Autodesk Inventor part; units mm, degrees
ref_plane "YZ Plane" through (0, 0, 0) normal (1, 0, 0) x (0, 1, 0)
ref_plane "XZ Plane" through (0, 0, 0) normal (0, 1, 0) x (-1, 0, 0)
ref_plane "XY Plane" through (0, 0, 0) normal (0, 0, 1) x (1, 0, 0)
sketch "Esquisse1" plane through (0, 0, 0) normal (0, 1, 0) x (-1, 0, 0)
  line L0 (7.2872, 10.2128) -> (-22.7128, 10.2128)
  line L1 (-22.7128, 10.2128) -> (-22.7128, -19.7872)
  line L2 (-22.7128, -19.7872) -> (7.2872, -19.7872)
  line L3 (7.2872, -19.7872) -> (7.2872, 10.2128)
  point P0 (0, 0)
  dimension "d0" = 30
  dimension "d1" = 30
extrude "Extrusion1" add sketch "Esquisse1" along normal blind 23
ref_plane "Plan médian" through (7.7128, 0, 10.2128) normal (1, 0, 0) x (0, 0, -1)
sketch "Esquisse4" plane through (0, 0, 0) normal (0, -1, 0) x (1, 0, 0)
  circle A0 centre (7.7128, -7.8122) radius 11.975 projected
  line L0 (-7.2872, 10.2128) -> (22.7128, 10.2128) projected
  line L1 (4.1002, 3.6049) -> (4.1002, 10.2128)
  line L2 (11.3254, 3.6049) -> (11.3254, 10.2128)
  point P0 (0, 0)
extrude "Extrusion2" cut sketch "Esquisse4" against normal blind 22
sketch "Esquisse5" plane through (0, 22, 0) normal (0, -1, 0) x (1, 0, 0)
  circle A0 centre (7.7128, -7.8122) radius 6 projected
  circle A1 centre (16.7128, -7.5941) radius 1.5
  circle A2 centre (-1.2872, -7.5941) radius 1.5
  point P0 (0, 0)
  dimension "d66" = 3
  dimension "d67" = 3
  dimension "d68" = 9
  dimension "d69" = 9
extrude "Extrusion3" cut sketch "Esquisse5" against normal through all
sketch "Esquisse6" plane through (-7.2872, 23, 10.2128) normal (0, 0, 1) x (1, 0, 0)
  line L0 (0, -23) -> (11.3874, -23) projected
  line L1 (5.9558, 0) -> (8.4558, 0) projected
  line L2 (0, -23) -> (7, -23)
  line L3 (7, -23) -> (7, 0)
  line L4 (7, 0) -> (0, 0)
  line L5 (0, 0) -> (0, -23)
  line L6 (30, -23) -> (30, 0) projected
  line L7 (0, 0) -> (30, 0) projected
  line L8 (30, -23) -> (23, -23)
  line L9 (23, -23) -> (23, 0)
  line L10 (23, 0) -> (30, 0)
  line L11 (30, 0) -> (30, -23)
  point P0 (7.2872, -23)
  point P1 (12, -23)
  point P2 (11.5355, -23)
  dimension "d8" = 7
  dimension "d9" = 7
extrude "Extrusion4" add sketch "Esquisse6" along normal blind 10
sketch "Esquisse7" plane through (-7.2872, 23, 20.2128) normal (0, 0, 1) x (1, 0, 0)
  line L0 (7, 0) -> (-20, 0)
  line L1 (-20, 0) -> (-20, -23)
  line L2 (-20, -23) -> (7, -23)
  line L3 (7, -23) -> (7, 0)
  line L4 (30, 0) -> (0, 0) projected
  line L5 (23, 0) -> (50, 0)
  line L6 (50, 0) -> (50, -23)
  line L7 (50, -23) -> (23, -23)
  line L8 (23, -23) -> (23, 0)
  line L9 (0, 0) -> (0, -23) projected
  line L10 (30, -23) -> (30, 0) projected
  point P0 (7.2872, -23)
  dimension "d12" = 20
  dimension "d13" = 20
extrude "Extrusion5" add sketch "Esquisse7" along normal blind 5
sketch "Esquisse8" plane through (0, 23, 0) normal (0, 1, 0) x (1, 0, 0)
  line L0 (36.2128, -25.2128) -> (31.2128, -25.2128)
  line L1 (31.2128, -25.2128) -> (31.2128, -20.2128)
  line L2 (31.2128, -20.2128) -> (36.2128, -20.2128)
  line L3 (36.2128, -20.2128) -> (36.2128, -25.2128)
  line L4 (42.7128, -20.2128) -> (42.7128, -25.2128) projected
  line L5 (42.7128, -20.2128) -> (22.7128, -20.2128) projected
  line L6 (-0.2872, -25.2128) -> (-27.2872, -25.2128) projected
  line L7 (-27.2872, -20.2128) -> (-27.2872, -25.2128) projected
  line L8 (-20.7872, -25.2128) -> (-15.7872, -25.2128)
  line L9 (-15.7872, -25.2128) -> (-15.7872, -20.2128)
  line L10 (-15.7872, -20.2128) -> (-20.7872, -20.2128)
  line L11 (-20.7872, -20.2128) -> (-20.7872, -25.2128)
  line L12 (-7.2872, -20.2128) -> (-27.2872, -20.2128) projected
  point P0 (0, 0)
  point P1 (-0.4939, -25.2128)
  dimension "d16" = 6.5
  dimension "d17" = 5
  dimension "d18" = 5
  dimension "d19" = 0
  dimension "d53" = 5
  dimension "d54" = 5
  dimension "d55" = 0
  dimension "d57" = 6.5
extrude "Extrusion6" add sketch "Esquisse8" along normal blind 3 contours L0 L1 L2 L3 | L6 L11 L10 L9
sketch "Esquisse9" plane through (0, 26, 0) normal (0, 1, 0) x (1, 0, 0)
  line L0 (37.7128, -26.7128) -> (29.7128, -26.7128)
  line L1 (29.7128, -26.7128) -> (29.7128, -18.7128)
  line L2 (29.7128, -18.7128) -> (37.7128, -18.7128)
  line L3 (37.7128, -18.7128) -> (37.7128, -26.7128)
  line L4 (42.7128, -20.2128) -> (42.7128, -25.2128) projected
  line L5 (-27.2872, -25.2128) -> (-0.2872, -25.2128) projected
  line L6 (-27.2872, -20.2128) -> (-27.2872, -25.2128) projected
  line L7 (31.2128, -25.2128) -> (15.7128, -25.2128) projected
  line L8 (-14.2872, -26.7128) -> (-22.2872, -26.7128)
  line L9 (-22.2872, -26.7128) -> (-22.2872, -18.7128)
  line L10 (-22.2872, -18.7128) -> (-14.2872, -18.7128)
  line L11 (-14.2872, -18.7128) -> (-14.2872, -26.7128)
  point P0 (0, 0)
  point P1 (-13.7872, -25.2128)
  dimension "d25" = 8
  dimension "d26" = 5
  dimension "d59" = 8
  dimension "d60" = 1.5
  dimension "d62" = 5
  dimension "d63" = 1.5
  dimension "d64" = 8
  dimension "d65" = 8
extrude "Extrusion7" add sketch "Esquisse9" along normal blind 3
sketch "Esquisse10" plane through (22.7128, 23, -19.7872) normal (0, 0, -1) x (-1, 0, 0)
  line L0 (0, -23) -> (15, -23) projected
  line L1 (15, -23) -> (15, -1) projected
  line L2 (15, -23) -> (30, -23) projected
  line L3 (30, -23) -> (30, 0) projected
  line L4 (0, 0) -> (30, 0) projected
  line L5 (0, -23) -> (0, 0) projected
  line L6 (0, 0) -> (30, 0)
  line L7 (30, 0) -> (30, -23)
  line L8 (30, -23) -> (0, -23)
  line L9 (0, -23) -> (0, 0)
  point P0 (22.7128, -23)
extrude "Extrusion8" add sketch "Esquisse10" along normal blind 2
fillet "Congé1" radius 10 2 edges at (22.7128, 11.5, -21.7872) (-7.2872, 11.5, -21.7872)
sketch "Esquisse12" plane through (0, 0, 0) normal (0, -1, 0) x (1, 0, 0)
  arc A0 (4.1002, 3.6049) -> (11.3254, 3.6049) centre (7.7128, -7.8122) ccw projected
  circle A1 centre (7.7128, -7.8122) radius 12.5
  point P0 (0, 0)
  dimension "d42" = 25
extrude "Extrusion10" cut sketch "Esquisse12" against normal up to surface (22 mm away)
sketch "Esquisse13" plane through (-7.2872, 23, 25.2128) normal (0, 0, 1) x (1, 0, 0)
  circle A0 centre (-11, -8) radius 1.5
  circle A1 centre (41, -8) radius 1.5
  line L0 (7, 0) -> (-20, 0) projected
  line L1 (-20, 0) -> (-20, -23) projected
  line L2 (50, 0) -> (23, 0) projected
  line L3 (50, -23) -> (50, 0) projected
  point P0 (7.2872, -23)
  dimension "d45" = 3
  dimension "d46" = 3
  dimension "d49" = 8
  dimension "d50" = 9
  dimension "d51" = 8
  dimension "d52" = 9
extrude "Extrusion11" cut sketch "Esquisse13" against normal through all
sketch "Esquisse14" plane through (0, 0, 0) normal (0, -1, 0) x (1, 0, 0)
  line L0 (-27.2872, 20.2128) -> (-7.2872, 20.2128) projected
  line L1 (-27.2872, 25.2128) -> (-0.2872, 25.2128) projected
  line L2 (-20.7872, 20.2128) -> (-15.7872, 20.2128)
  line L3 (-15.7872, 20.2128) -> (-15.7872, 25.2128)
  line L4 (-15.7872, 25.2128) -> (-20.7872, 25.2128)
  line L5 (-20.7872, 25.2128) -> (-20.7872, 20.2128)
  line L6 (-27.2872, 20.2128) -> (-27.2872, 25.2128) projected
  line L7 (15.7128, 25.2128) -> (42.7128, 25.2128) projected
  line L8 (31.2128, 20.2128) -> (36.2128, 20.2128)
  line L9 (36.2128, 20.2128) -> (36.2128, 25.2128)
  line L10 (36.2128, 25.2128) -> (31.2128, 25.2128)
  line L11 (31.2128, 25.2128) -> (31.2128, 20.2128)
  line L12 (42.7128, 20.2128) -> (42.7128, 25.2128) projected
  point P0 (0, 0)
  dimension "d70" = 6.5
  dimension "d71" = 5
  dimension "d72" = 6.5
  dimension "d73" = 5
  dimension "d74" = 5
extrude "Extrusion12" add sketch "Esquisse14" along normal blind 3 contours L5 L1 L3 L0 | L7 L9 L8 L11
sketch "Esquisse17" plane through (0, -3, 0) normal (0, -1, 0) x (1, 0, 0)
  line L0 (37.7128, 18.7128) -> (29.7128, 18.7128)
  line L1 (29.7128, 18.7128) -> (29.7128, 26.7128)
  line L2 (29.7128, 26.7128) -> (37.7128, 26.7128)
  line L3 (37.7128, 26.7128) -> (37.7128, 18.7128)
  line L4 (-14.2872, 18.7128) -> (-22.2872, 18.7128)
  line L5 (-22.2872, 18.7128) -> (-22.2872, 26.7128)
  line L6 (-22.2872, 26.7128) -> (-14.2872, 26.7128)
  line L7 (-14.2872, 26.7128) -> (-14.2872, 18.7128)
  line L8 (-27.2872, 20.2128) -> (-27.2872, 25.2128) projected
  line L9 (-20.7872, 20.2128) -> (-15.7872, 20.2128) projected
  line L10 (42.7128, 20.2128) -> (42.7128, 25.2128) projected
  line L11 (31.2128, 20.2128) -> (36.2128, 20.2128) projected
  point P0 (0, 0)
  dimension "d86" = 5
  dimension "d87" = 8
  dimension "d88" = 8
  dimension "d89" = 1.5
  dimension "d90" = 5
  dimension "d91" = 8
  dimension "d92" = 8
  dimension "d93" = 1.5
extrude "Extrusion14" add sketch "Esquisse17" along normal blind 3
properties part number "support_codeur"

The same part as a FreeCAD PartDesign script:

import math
import FreeCAD as App
import Part
import Sketcher
from FreeCAD import Vector


def edges_at(feature, points):
    """Names of the edges that pass closest to the given points."""
    edges = feature.Shape.Edges
    near = lambda p: min(range(len(edges)), key=lambda i: edges[i].distToShape(Part.Vertex(*p))[0])
    return sorted({f"Edge{near(p) + 1}" for p in points})


def add_polygon(sketch, points):
    """Adds a closed chain of lines whose ends are joined by coincident constraints."""
    first, n = sketch.GeometryCount, len(points)
    for a, b in zip(points, points[1:] + points[:1]):
        sketch.addGeometry(Part.LineSegment(App.Vector(*a, 0), App.Vector(*b, 0)), False)
    for i in range(n):
        sketch.addConstraint(Sketcher.Constraint("Coincident", first + i, 2, first + (i + 1) % n, 1))

doc = App.newDocument("Part")
body = doc.addObject("PartDesign::Body", "Body")

# Sketch on XZ plane
sketch1 = doc.addObject("Sketcher::SketchObject", "Sketch")
body.addObject(sketch1)
sketch1.AttachmentSupport = (doc.XZ_Plane, [""])
sketch1.MapMode = "FlatFace"
add_polygon(sketch1, [(-7, -20), (-7, 10), (23, 10), (23, -20)])  # lines 0-3
sketch1.addConstraint([
    Sketcher.Constraint("Vertical", 0),
    Sketcher.Constraint("Horizontal", 1),
    Sketcher.Constraint("Vertical", 2),
    Sketcher.Constraint("Horizontal", 3),
    Sketcher.Constraint("Equal", 3, 0),
    Sketcher.Constraint("DistanceX", 1, 1, 1, 2, 30.0),
    Sketcher.Constraint("DistanceX", 0, 2, -1, 1, 7.2872),
    Sketcher.Constraint("DistanceY", -1, 1, 0, 2, 10.2128),
])
pad1 = doc.addObject("PartDesign::Pad", "Pad")
body.addObject(pad1)
pad1.Profile = sketch1
pad1.Length = 23
pad1.Reversed = True

# Sketch on XZ plane
sketch2 = doc.addObject("Sketcher::SketchObject", "Sketch001")
body.addObject(sketch2)
sketch2.AttachmentSupport = (doc.XZ_Plane, [""])
sketch2.MapMode = "FlatFace"
sketch2.addGeometry([
    Part.ArcOfCircle(Part.Circle(Vector(8, -8, 0), Vector(0, 0, 1), 12), math.radians(108), math.radians(432)),
    Part.LineSegment(Vector(11, 4, 0), Vector(11, 10, 0)),
    Part.LineSegment(Vector(11, 10, 0), Vector(4, 10, 0)),
    Part.LineSegment(Vector(4, 10, 0), Vector(4, 4, 0)),
], False)
sketch2.addConstraint([
    Sketcher.Constraint("Coincident", 0, 2, 1, 1),
    Sketcher.Constraint("Coincident", 1, 2, 2, 1),
    Sketcher.Constraint("Coincident", 2, 2, 3, 1),
    Sketcher.Constraint("Coincident", 3, 2, 0, 1),
    Sketcher.Constraint("Vertical", 1),
    Sketcher.Constraint("Horizontal", 2),
    Sketcher.Constraint("Vertical", 3),
    Sketcher.Constraint("Horizontal", 0, 2, 3, 2),
    Sketcher.Constraint("Radius", 0, 11.975),
    Sketcher.Constraint("DistanceY", 1, 1, 1, 2, 6.608),
    Sketcher.Constraint("DistanceX", 2, 2, 2, 1, 7.2252),
    Sketcher.Constraint("DistanceY", -1, 1, 0, 2, 3.605),
    Sketcher.Constraint("DistanceX", -1, 1, 0, 3, 7.7128),
])
pocket1 = doc.addObject("PartDesign::Pocket", "Pocket")
body.addObject(pocket1)
pocket1.Profile = sketch2
pocket1.Length = 22

# Sketch on XZ plane
sketch3 = doc.addObject("Sketcher::SketchObject", "Sketch002")
body.addObject(sketch3)
sketch3.AttachmentSupport = (doc.XZ_Plane, [""])
sketch3.MapMode = "FlatFace"
sketch3.AttachmentOffset = App.Placement(Vector(0, 0, -22), App.Rotation())
sketch3.addGeometry([
    Part.Circle(Vector(7.7, -7.8, 0), Vector(0, 0, 1), 6),
    Part.Circle(Vector(16.7, -7.6, 0), Vector(0, 0, 1), 1.5),
    Part.Circle(Vector(-1.3, -7.6, 0), Vector(0, 0, 1), 1.5),
], False)
sketch3.addConstraint([
    Sketcher.Constraint("Equal", 1, 2),
    Sketcher.Constraint("Horizontal", 1, 3, 2, 3),
    Sketcher.Constraint("Diameter", 1, 3.0),
    Sketcher.Constraint("Diameter", 0, 12.0),
    Sketcher.Constraint("DistanceX", 0, 3, 1, 3, 9.0),
    Sketcher.Constraint("DistanceX", 2, 3, 0, 3, 9.0),
    Sketcher.Constraint("DistanceY", 1, 3, -1, 1, 7.594),
    Sketcher.Constraint("DistanceY", 0, 3, 1, 3, 0.218),
    Sketcher.Constraint("DistanceX", -1, 1, 0, 3, 7.7128),
])
pocket2 = doc.addObject("PartDesign::Pocket", "Pocket001")
body.addObject(pocket2)
pocket2.Profile = sketch3
pocket2.Type = "ThroughAll"

# Sketch on XY plane
sketch4 = doc.addObject("Sketcher::SketchObject", "Sketch003")
body.addObject(sketch4)
sketch4.AttachmentSupport = (doc.XY_Plane, [""])
sketch4.MapMode = "FlatFace"
sketch4.AttachmentOffset = App.Placement(Vector(0, 0, 10.2128), App.Rotation())
add_polygon(sketch4, [(-7, 23), (-7, 0), (0, 0), (0, 23)])  # lines 0-3
add_polygon(sketch4, [(23, 23), (16, 23), (16, 0), (23, 0)])  # lines 4-7
sketch4.addConstraint([
    Sketcher.Constraint("Vertical", 0),
    Sketcher.Constraint("Horizontal", 1),
    Sketcher.Constraint("Vertical", 2),
    Sketcher.Constraint("Horizontal", 3),
    Sketcher.Constraint("Horizontal", 4),
    Sketcher.Constraint("Vertical", 5),
    Sketcher.Constraint("Horizontal", 6),
    Sketcher.Constraint("Vertical", 7),
    Sketcher.Constraint("PointOnObject", 0, 2, -1),
    Sketcher.Constraint("PointOnObject", 5, 2, -1),
    Sketcher.Constraint("Horizontal", 3, 2, 4, 2),
    Sketcher.Constraint("Equal", 3, 4),
    Sketcher.Constraint("DistanceX", 1, 1, 1, 2, 7.0),
    Sketcher.Constraint("DistanceY", 0, 2, 0, 1, 23.0),
    Sketcher.Constraint("DistanceX", 2, 2, 4, 2, 16.0),
    Sketcher.Constraint("DistanceX", 0, 2, -1, 1, 7.2872),
])
pad2 = doc.addObject("PartDesign::Pad", "Pad001")
body.addObject(pad2)
pad2.Profile = sketch4
pad2.Length = 10

# Sketch on XY plane
sketch5 = doc.addObject("Sketcher::SketchObject", "Sketch004")
body.addObject(sketch5)
sketch5.AttachmentSupport = (doc.XY_Plane, [""])
sketch5.MapMode = "FlatFace"
sketch5.AttachmentOffset = App.Placement(Vector(0, 0, 20.2128), App.Rotation())
add_polygon(sketch5, [(0, 0), (0, 23), (-27, 23), (-27, 0)])  # lines 0-3
add_polygon(sketch5, [(16, 23), (16, 0), (43, 0), (43, 23)])  # lines 4-7
sketch5.addConstraint([
    Sketcher.Constraint("Vertical", 0),
    Sketcher.Constraint("Horizontal", 1),
    Sketcher.Constraint("Vertical", 2),
    Sketcher.Constraint("Horizontal", 3),
    Sketcher.Constraint("Vertical", 4),
    Sketcher.Constraint("Horizontal", 5),
    Sketcher.Constraint("Vertical", 6),
    Sketcher.Constraint("Horizontal", 7),
    Sketcher.Constraint("PointOnObject", 2, 2, -1),
    Sketcher.Constraint("PointOnObject", 4, 2, -1),
    Sketcher.Constraint("Horizontal", 1, 2, 6, 2),
    Sketcher.Constraint("Equal", 3, 5),
    Sketcher.Constraint("DistanceX", 1, 2, 1, 1, 27.0),
    Sketcher.Constraint("DistanceY", 0, 1, 0, 2, 23.0),
    Sketcher.Constraint("DistanceX", 3, 2, 4, 2, 16.0),
    Sketcher.Constraint("DistanceX", 0, 2, -1, 1, 0.2872),
])
pad3 = doc.addObject("PartDesign::Pad", "Pad002")
body.addObject(pad3)
pad3.Profile = sketch5
pad3.Length = 5

# Sketch on XZ plane
sketch6 = doc.addObject("Sketcher::SketchObject", "Sketch005")
body.addObject(sketch6)
sketch6.AttachmentSupport = (doc.XZ_Plane, [""])
sketch6.MapMode = "FlatFace"
sketch6.AttachmentOffset = App.Placement(Vector(0, 0, -23), App.Rotation())
add_polygon(sketch6, [(31.2, 25.2), (36.2, 25.2), (36.2, 20.2), (31.2, 20.2)])  # lines 0-3
add_polygon(sketch6, [(-20.8, 25.2), (-15.8, 25.2), (-15.8, 20.2), (-20.8, 20.2)])  # lines 4-7
sketch6.addConstraint([
    Sketcher.Constraint("Horizontal", 0),
    Sketcher.Constraint("Vertical", 1),
    Sketcher.Constraint("Horizontal", 2),
    Sketcher.Constraint("Vertical", 3),
    Sketcher.Constraint("Horizontal", 4),
    Sketcher.Constraint("Vertical", 5),
    Sketcher.Constraint("Horizontal", 6),
    Sketcher.Constraint("Vertical", 7),
    Sketcher.Constraint("Horizontal", 3, 2, 4, 2),
    Sketcher.Constraint("Horizontal", 2, 2, 5, 2),
    Sketcher.Constraint("Equal", 2, 4),
    Sketcher.Constraint("Equal", 6, 1),
    Sketcher.Constraint("DistanceX", 0, 1, 0, 2, 5.0),
    Sketcher.Constraint("DistanceX", 4, 2, 3, 2, 47.0),
    Sketcher.Constraint("DistanceX", -1, 1, 0, 2, 36.2128),
    Sketcher.Constraint("DistanceY", -1, 1, 0, 2, 25.2128),
])
pad4 = doc.addObject("PartDesign::Pad", "Pad003")
body.addObject(pad4)
pad4.Profile = sketch6
pad4.Length = 3
pad4.Reversed = True

# Sketch on XZ plane
sketch7 = doc.addObject("Sketcher::SketchObject", "Sketch006")
body.addObject(sketch7)
sketch7.AttachmentSupport = (doc.XZ_Plane, [""])
sketch7.MapMode = "FlatFace"
sketch7.AttachmentOffset = App.Placement(Vector(0, 0, -26), App.Rotation())
add_polygon(sketch7, [(30, 27), (38, 27), (38, 19), (30, 19)])  # lines 0-3
add_polygon(sketch7, [(-22, 19), (-22, 27), (-14, 27), (-14, 19)])  # lines 4-7
sketch7.addConstraint([
    Sketcher.Constraint("Horizontal", 0),
    Sketcher.Constraint("Vertical", 1),
    Sketcher.Constraint("Horizontal", 2),
    Sketcher.Constraint("Vertical", 3),
    Sketcher.Constraint("Vertical", 4),
    Sketcher.Constraint("Horizontal", 5),
    Sketcher.Constraint("Vertical", 6),
    Sketcher.Constraint("Horizontal", 7),
    Sketcher.Constraint("Horizontal", 3, 2, 4, 2),
    Sketcher.Constraint("Horizontal", 2, 2, 6, 2),
    Sketcher.Constraint("Equal", 2, 5),
    Sketcher.Constraint("Equal", 7, 1),
    Sketcher.Constraint("DistanceX", 0, 1, 0, 2, 8.0),
    Sketcher.Constraint("DistanceX", 4, 2, 3, 2, 52.0),
    Sketcher.Constraint("DistanceX", -1, 1, 0, 2, 37.7128),
    Sketcher.Constraint("DistanceY", -1, 1, 0, 2, 26.7128),
])
pad5 = doc.addObject("PartDesign::Pad", "Pad004")
body.addObject(pad5)
pad5.Profile = sketch7
pad5.Length = 3
pad5.Reversed = True

# Sketch on XY plane
sketch8 = doc.addObject("Sketcher::SketchObject", "Sketch007")
body.addObject(sketch8)
sketch8.AttachmentSupport = (doc.XY_Plane, [""])
sketch8.MapMode = "FlatFace"
sketch8.AttachmentOffset = App.Placement(Vector(0, 0, -19.7872), App.Rotation())
add_polygon(sketch8, [(23, 23), (23, 0), (-7, 0), (-7, 23)])  # lines 0-3
sketch8.addConstraint([
    Sketcher.Constraint("Vertical", 0),
    Sketcher.Constraint("Horizontal", 1),
    Sketcher.Constraint("Vertical", 2),
    Sketcher.Constraint("Horizontal", 3),
    Sketcher.Constraint("PointOnObject", 0, 2, -1),
    Sketcher.Constraint("DistanceX", 1, 2, 1, 1, 30.0),
    Sketcher.Constraint("DistanceY", 0, 2, 0, 1, 23.0),
    Sketcher.Constraint("DistanceX", -1, 1, 0, 2, 22.7128),
])
pad6 = doc.addObject("PartDesign::Pad", "Pad005")
body.addObject(pad6)
pad6.Profile = sketch8
pad6.Length = 2
pad6.Reversed = True
doc.recompute()

fillet = doc.addObject("PartDesign::Fillet", "Fillet")
body.addObject(fillet)
fillet.Base = (pad6, edges_at(pad6, [(22.713, 11.5, -21.787), (-7.287, 11.5, -21.787)]))
fillet.Radius = 10

# Sketch on XZ plane
sketch9 = doc.addObject("Sketcher::SketchObject", "Sketch008")
body.addObject(sketch9)
sketch9.AttachmentSupport = (doc.XZ_Plane, [""])
sketch9.MapMode = "FlatFace"
sketch9.addGeometry(Part.Circle(Vector(8, -8, 0), Vector(0, 0, 1), 12), False)
sketch9.addConstraint([
    Sketcher.Constraint("Diameter", 0, 25.0),
    Sketcher.Constraint("DistanceX", -1, 1, 0, 3, 7.7128),
    Sketcher.Constraint("DistanceY", 0, 3, -1, 1, 7.8122),
])
pocket3 = doc.addObject("PartDesign::Pocket", "Pocket002")
body.addObject(pocket3)
pocket3.Profile = sketch9
pocket3.Length = 22

# Sketch on XY plane
sketch10 = doc.addObject("Sketcher::SketchObject", "Sketch009")
body.addObject(sketch10)
sketch10.AttachmentSupport = (doc.XY_Plane, [""])
sketch10.MapMode = "FlatFace"
sketch10.AttachmentOffset = App.Placement(Vector(0, 0, 25.2128), App.Rotation())
sketch10.addGeometry([
    Part.Circle(Vector(-18.3, 15, 0), Vector(0, 0, 1), 1.5),
    Part.Circle(Vector(33.7, 15, 0), Vector(0, 0, 1), 1.5),
], False)
sketch10.addConstraint([
    Sketcher.Constraint("Equal", 0, 1),
    Sketcher.Constraint("Horizontal", 0, 3, 1, 3),
    Sketcher.Constraint("Diameter", 0, 3.0),
    Sketcher.Constraint("DistanceY", -1, 1, 0, 3, 15.0),
    Sketcher.Constraint("DistanceX", 0, 3, 1, 3, 52.0),
    Sketcher.Constraint("DistanceX", 0, 3, -1, 1, 18.2872),
])
pocket4 = doc.addObject("PartDesign::Pocket", "Pocket003")
body.addObject(pocket4)
pocket4.Profile = sketch10
pocket4.Type = "ThroughAll"

# Sketch on XZ plane
sketch11 = doc.addObject("Sketcher::SketchObject", "Sketch010")
body.addObject(sketch11)
sketch11.AttachmentSupport = (doc.XZ_Plane, [""])
sketch11.MapMode = "FlatFace"
add_polygon(sketch11, [(-20.8, 25.2), (-20.8, 20.2), (-15.8, 20.2), (-15.8, 25.2)])  # lines 0-3
add_polygon(sketch11, [(36.2, 25.2), (31.2, 25.2), (31.2, 20.2), (36.2, 20.2)])  # lines 4-7
sketch11.addConstraint([
    Sketcher.Constraint("Vertical", 0),
    Sketcher.Constraint("Horizontal", 1),
    Sketcher.Constraint("Vertical", 2),
    Sketcher.Constraint("Horizontal", 3),
    Sketcher.Constraint("Horizontal", 4),
    Sketcher.Constraint("Vertical", 5),
    Sketcher.Constraint("Horizontal", 6),
    Sketcher.Constraint("Vertical", 7),
    Sketcher.Constraint("Horizontal", 3, 2, 4, 2),
    Sketcher.Constraint("Horizontal", 1, 2, 5, 2),
    Sketcher.Constraint("Equal", 3, 4),
    Sketcher.Constraint("Equal", 6, 0),
    Sketcher.Constraint("DistanceX", 1, 1, 1, 2, 5.0),
    Sketcher.Constraint("DistanceX", 2, 2, 4, 2, 47.0),
    Sketcher.Constraint("DistanceX", 0, 2, -1, 1, 20.7872),
    Sketcher.Constraint("DistanceY", -1, 1, 0, 2, 20.2128),
])
pad7 = doc.addObject("PartDesign::Pad", "Pad006")
body.addObject(pad7)
pad7.Profile = sketch11
pad7.Length = 3

# Sketch on XZ plane
sketch12 = doc.addObject("Sketcher::SketchObject", "Sketch011")
body.addObject(sketch12)
sketch12.AttachmentSupport = (doc.XZ_Plane, [""])
sketch12.MapMode = "FlatFace"
sketch12.AttachmentOffset = App.Placement(Vector(0, 0, 3), App.Rotation())
add_polygon(sketch12, [(30, 19), (38, 19), (38, 27), (30, 27)])  # lines 0-3
add_polygon(sketch12, [(-22, 19), (-14, 19), (-14, 27), (-22, 27)])  # lines 4-7
sketch12.addConstraint([
    Sketcher.Constraint("Horizontal", 0),
    Sketcher.Constraint("Vertical", 1),
    Sketcher.Constraint("Horizontal", 2),
    Sketcher.Constraint("Vertical", 3),
    Sketcher.Constraint("Horizontal", 4),
    Sketcher.Constraint("Vertical", 5),
    Sketcher.Constraint("Horizontal", 6),
    Sketcher.Constraint("Vertical", 7),
    Sketcher.Constraint("Horizontal", 3, 2, 4, 2),
    Sketcher.Constraint("Horizontal", 2, 2, 5, 2),
    Sketcher.Constraint("Equal", 2, 4),
    Sketcher.Constraint("Equal", 6, 1),
    Sketcher.Constraint("DistanceX", 0, 1, 0, 2, 8.0),
    Sketcher.Constraint("DistanceX", 4, 2, 3, 2, 44.0),
    Sketcher.Constraint("DistanceX", -1, 1, 0, 2, 37.7128),
    Sketcher.Constraint("DistanceY", -1, 1, 0, 2, 18.7128),
])
pad8 = doc.addObject("PartDesign::Pad", "Pad007")
body.addObject(pad8)
pad8.Profile = sketch12
pad8.Length = 3

doc.recompute()
